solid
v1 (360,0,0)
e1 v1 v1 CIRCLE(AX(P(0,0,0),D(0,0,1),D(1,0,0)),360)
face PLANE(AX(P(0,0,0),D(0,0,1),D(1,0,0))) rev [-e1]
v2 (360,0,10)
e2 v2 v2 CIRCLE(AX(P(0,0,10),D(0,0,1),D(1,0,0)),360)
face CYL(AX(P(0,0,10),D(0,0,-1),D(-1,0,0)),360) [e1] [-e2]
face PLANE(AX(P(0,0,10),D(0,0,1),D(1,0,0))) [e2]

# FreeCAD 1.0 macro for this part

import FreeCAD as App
import Part
import Sketcher
Q = App.Units.Quantity

doc = App.newDocument("Part")
body = doc.addObject("PartDesign::Body", "Body")

# Sketch on XY plane
sketch1 = body.newObject("Sketcher::SketchObject", "Sketch")
sketch1.AttachmentSupport = (doc.getObject("XY_Plane"), [""])
sketch1.MapMode = "FlatFace"
sketch1.addGeometry(Part.Circle(App.Vector(0, 0, 0), App.Vector(0, 0, 1), 360), False)
sketch1.addConstraint(Sketcher.Constraint("Coincident", 0, 3, -1, 1))
sketch1.addConstraint(Sketcher.Constraint("Diameter", 0, Q("720 mm")))
pad1 = body.newObject("PartDesign::Pad", "Pad")
pad1.Profile = sketch1
pad1.Length = 10

doc.recompute()
